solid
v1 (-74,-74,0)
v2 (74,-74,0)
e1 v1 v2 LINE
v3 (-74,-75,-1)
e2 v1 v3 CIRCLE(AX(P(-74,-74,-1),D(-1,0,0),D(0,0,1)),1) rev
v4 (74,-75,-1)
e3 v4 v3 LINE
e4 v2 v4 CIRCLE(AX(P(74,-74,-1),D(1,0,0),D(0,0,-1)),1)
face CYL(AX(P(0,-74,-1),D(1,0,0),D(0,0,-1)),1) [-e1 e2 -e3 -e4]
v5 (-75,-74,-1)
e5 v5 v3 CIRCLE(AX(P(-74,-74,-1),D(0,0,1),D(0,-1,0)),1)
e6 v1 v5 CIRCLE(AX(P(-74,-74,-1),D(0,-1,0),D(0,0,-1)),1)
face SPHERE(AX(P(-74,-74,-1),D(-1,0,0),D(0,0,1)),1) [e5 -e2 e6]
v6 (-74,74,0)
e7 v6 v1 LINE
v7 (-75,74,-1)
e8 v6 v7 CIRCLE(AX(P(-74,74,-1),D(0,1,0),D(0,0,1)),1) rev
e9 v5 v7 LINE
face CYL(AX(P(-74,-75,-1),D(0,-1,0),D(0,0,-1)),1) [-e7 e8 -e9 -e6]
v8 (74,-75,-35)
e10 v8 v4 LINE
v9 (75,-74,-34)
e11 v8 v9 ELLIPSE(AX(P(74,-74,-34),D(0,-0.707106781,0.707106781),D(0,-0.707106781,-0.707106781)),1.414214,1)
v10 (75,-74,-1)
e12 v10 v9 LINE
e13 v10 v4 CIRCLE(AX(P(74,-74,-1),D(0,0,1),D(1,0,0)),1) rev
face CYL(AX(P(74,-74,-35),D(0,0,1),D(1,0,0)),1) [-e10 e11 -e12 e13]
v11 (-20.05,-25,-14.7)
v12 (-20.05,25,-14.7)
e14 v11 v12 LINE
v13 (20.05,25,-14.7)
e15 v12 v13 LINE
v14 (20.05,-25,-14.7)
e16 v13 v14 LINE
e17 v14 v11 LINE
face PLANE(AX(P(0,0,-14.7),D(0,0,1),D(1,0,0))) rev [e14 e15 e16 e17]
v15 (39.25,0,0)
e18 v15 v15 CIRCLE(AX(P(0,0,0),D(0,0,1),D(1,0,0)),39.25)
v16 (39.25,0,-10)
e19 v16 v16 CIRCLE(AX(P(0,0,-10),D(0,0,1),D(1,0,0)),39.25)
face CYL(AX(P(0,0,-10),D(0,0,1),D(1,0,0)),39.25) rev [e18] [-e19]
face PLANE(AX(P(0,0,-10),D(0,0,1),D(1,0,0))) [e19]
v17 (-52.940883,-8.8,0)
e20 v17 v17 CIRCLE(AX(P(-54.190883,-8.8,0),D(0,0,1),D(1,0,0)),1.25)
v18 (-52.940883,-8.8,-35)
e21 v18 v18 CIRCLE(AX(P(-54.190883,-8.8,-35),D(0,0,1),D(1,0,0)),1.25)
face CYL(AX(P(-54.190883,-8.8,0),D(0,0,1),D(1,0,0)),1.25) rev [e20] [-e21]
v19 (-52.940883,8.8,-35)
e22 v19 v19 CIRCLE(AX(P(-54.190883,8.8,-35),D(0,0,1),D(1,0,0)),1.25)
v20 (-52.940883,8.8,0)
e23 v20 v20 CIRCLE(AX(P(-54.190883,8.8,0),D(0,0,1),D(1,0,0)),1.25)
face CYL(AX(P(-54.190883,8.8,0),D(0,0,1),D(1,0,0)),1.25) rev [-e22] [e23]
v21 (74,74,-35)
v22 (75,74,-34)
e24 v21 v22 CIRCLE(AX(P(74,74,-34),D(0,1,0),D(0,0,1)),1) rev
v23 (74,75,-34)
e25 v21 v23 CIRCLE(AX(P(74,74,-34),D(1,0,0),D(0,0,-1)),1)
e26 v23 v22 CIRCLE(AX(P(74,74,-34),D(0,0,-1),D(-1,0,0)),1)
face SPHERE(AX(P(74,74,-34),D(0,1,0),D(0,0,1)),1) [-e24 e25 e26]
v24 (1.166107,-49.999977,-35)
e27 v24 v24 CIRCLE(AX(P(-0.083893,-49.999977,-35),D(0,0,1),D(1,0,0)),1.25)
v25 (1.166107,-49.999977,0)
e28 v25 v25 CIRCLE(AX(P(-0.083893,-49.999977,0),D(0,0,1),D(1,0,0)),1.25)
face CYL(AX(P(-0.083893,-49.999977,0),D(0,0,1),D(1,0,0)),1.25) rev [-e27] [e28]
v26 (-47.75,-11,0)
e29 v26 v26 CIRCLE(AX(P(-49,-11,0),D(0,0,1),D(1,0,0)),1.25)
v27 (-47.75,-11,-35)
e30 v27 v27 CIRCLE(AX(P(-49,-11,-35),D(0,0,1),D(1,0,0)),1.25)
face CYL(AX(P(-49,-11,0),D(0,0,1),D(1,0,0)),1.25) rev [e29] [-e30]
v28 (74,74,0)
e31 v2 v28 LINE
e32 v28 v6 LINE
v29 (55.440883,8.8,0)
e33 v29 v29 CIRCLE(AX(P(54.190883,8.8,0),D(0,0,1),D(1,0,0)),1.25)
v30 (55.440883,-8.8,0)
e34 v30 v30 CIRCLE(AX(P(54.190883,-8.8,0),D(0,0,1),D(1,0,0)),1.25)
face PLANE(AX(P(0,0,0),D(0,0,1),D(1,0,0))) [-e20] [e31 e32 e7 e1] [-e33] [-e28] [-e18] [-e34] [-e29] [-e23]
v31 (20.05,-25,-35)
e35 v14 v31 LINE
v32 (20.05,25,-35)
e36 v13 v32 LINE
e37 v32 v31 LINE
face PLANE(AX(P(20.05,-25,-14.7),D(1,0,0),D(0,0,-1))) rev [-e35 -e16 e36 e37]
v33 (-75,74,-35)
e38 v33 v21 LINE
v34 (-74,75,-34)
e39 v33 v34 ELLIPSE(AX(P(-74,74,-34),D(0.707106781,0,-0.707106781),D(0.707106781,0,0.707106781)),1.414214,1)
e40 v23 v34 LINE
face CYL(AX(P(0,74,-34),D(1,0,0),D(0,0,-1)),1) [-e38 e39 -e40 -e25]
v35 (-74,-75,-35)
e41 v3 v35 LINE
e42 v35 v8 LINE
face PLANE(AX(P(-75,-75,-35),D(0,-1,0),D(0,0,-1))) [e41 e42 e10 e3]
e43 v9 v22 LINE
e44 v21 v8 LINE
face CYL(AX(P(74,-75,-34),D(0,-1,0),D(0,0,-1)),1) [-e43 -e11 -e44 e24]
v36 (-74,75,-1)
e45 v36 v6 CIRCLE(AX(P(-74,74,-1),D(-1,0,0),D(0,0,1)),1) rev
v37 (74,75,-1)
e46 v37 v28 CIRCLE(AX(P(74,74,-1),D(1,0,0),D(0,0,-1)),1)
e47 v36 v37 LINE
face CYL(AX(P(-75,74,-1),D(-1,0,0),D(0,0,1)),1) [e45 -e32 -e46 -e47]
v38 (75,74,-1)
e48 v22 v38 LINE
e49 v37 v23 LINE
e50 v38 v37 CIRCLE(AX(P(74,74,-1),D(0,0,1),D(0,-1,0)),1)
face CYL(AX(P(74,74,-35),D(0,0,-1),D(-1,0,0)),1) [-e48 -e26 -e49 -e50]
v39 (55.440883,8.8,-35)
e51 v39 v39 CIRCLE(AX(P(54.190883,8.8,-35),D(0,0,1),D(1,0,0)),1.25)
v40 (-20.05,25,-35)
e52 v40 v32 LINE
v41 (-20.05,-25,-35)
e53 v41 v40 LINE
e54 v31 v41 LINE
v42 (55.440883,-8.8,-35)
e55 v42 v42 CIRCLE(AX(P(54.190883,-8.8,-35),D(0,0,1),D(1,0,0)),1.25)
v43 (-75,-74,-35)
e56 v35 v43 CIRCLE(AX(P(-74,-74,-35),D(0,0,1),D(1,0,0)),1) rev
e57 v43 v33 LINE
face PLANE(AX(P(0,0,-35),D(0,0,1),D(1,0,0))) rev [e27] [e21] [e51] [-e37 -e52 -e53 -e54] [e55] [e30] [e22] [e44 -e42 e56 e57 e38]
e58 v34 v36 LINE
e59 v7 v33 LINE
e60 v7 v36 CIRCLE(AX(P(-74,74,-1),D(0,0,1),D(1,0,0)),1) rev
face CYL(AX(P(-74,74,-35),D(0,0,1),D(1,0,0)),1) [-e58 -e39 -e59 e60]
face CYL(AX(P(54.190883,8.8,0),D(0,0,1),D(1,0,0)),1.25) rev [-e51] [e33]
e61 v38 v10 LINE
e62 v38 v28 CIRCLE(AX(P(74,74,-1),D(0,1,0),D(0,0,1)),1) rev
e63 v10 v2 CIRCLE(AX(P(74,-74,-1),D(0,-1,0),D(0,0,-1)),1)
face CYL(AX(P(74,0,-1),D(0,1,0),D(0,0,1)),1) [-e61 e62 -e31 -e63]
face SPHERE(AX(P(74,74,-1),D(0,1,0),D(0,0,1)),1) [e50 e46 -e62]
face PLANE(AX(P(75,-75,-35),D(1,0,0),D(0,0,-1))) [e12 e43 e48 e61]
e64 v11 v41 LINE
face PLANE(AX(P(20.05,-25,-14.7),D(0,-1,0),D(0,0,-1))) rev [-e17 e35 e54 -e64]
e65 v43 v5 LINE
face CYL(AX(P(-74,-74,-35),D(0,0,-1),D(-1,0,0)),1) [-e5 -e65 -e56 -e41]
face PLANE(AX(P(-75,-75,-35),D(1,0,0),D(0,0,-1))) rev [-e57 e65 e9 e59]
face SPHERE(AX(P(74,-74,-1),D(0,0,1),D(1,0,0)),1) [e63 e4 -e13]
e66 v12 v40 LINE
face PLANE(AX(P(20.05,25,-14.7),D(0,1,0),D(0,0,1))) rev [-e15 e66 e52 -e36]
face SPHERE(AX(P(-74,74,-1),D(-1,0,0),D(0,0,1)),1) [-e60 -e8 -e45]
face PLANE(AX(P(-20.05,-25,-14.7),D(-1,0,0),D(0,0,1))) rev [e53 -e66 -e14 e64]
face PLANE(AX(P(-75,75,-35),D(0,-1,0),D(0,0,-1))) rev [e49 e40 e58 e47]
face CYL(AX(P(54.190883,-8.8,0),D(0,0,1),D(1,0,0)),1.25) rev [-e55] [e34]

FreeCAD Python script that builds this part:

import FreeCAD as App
import Part
import Sketcher

V = App.Vector


def edges_at(feature, points):
    """Names of the edges that pass closest to the given points."""
    edges = feature.Shape.Edges
    near = lambda p: min(range(len(edges)), key=lambda i: edges[i].distToShape(Part.Vertex(*p))[0])
    return sorted({f"Edge{near(p) + 1}" for p in points})


def add_polygon(sketch, points):
    """Adds a closed chain of lines whose ends are joined by coincident constraints."""
    first, n = sketch.GeometryCount, len(points)
    for a, b in zip(points, points[1:] + points[:1]):
        sketch.addGeometry(Part.LineSegment(App.Vector(*a, 0), App.Vector(*b, 0)), False)
    for i in range(n):
        sketch.addConstraint(Sketcher.Constraint("Coincident", first + i, 2, first + (i + 1) % n, 1))

doc = App.newDocument("Part")
body = doc.addObject("PartDesign::Body", "Body")

# Sketch on XY plane
sketch1 = body.newObject("Sketcher::SketchObject", "Sketch")
sketch1.AttachmentSupport = (doc.getObject("XY_Plane"), [""])
sketch1.MapMode = "FlatFace"
add_polygon(sketch1, [(-75, 75), (-75, -75), (75, -75), (75, 75)])  # lines 0-3
sketch1.addConstraint([
    Sketcher.Constraint("Vertical", 0),
    Sketcher.Constraint("Horizontal", 1),
    Sketcher.Constraint("Vertical", 2),
    Sketcher.Constraint("Horizontal", 3),
    Sketcher.Constraint("Symmetric", 0, 2, 2, 2, -1, 1),
    Sketcher.Constraint("Equal", 3, 0),
    Sketcher.Constraint("DistanceX", 1, 1, 1, 2, 150.0),
])
pad1 = body.newObject("PartDesign::Pad", "Pad")
pad1.Profile = sketch1
pad1.Length = 35
pad1.Reversed = True
doc.recompute()

fillet = body.newObject("PartDesign::Fillet", "Fillet")
fillet.Base = (pad1, edges_at(pad1, [
    (0, 75, -35),
    (-75, 0, 0),
    (0, 75, 0),
    (75, 0, 0),
    (0, -75, 0),
    (-75, -75, -17.5),
    (-75, 75, -17.5),
    (75, 75, -17.5),
    (75, -75, -17.5),
    (75, 0, -35),
]))
fillet.Radius = 1

# Sketch on XY plane
sketch2 = body.newObject("Sketcher::SketchObject", "Sketch001")
sketch2.AttachmentSupport = (doc.getObject("XY_Plane"), [""])
sketch2.MapMode = "FlatFace"
sketch2.addGeometry(Part.Circle(V(0, 0, 0), V(0, 0, 1), 39), False)
sketch2.addConstraint([
    Sketcher.Constraint("Coincident", 0, 3, -1, 1),
    Sketcher.Constraint("Diameter", 0, 78.5),
])
pocket1 = body.newObject("PartDesign::Pocket", "Pocket")
pocket1.Profile = sketch2
pocket1.Length = 10

# Sketch on XY plane
sketch3 = body.newObject("Sketcher::SketchObject", "Sketch002")
sketch3.AttachmentSupport = (doc.getObject("XY_Plane"), [""])
sketch3.MapMode = "FlatFace"
sketch3.addGeometry([
    Part.Circle(V(-54.2, -8.8, 0), V(0, 0, 1), 1.2),
    Part.Circle(V(-54.2, 8.8, 0), V(0, 0, 1), 1.2),
    Part.Circle(V(54.2, -8.8, 0), V(0, 0, 1), 1.2),
    Part.Circle(V(54.2, 8.8, 0), V(0, 0, 1), 1.2),
], False)
sketch3.addConstraint([
    Sketcher.Constraint("Equal", 0, 1),
    Sketcher.Constraint("Equal", 1, 2),
    Sketcher.Constraint("Equal", 2, 3),
    Sketcher.Constraint("Symmetric", 1, 3, 2, 3, -1, 1),
    Sketcher.Constraint("Symmetric", 0, 3, 3, 3, -1, 1),
    Sketcher.Constraint("Symmetric", 0, 3, 2, 3, -2),
    Sketcher.Constraint("Diameter", 0, 2.5),
    Sketcher.Constraint("DistanceY", 0, 3, -1, 1, 8.8),
    Sketcher.Constraint("DistanceX", 0, 3, -1, 1, 54.190883),
])
doc.recompute()
hole = body.newObject("PartDesign::Hole", "Hole")
hole.Profile = sketch3
hole.ThreadType = "None"
hole.Diameter = 2.5
hole.DepthType = "ThroughAll"

# Sketch on XY plane
sketch4 = body.newObject("Sketcher::SketchObject", "Sketch003")
sketch4.AttachmentSupport = (doc.getObject("XY_Plane"), [""])
sketch4.MapMode = "FlatFace"
sketch4.addGeometry(Part.Circle(V(-49, -11, 0), V(0, 0, 1), 1.2), False)
sketch4.addConstraint([
    Sketcher.Constraint("Diameter", 0, 2.5),
    Sketcher.Constraint("DistanceX", 0, 3, -1, 1, 49.0),
    Sketcher.Constraint("DistanceY", 0, 3, -1, 1, 11.0),
])
doc.recompute()
hole2 = body.newObject("PartDesign::Hole", "Hole001")
hole2.Profile = sketch4
hole2.ThreadType = "None"
hole2.Diameter = 2.5
hole2.DepthType = "ThroughAll"

# Sketch on XY plane
sketch5 = body.newObject("Sketcher::SketchObject", "Sketch004")
sketch5.AttachmentSupport = (doc.getObject("XY_Plane"), [""])
sketch5.MapMode = "FlatFace"
sketch5.addGeometry(Part.Circle(V(-0.1, -50, 0), V(0, 0, 1), 1.2), False)
sketch5.addConstraint([
    Sketcher.Constraint("Diameter", 0, 2.5),
    Sketcher.Constraint("DistanceX", 0, 3, -1, 1, 0.083893),
    Sketcher.Constraint("DistanceY", 0, 3, -1, 1, 49.999977),
])
doc.recompute()
hole3 = body.newObject("PartDesign::Hole", "Hole002")
hole3.Profile = sketch5
hole3.ThreadType = "None"
hole3.Diameter = 2.5
hole3.DepthType = "ThroughAll"

# Sketch on XY plane
sketch6 = body.newObject("Sketcher::SketchObject", "Sketch005")
sketch6.AttachmentSupport = (doc.getObject("XY_Plane"), [""])
sketch6.MapMode = "FlatFace"
sketch6.AttachmentOffset = App.Placement(V(0, 0, -35), App.Rotation())
add_polygon(sketch6, [(20, 25), (20, -25), (-20, -25), (-20, 25)])  # lines 0-3
sketch6.addConstraint([
    Sketcher.Constraint("Vertical", 0),
    Sketcher.Constraint("Horizontal", 1),
    Sketcher.Constraint("Vertical", 2),
    Sketcher.Constraint("Horizontal", 3),
    Sketcher.Constraint("Symmetric", 0, 2, 2, 2, -1, 1),
    Sketcher.Constraint("DistanceY", 0, 2, 0, 1, 50.0),
    Sketcher.Constraint("DistanceX", 1, 2, 1, 1, 40.1),
])
pocket2 = body.newObject("PartDesign::Pocket", "Pocket001")
pocket2.Profile = sketch6
pocket2.Length = 20.3
pocket2.Reversed = True

doc.recompute()
